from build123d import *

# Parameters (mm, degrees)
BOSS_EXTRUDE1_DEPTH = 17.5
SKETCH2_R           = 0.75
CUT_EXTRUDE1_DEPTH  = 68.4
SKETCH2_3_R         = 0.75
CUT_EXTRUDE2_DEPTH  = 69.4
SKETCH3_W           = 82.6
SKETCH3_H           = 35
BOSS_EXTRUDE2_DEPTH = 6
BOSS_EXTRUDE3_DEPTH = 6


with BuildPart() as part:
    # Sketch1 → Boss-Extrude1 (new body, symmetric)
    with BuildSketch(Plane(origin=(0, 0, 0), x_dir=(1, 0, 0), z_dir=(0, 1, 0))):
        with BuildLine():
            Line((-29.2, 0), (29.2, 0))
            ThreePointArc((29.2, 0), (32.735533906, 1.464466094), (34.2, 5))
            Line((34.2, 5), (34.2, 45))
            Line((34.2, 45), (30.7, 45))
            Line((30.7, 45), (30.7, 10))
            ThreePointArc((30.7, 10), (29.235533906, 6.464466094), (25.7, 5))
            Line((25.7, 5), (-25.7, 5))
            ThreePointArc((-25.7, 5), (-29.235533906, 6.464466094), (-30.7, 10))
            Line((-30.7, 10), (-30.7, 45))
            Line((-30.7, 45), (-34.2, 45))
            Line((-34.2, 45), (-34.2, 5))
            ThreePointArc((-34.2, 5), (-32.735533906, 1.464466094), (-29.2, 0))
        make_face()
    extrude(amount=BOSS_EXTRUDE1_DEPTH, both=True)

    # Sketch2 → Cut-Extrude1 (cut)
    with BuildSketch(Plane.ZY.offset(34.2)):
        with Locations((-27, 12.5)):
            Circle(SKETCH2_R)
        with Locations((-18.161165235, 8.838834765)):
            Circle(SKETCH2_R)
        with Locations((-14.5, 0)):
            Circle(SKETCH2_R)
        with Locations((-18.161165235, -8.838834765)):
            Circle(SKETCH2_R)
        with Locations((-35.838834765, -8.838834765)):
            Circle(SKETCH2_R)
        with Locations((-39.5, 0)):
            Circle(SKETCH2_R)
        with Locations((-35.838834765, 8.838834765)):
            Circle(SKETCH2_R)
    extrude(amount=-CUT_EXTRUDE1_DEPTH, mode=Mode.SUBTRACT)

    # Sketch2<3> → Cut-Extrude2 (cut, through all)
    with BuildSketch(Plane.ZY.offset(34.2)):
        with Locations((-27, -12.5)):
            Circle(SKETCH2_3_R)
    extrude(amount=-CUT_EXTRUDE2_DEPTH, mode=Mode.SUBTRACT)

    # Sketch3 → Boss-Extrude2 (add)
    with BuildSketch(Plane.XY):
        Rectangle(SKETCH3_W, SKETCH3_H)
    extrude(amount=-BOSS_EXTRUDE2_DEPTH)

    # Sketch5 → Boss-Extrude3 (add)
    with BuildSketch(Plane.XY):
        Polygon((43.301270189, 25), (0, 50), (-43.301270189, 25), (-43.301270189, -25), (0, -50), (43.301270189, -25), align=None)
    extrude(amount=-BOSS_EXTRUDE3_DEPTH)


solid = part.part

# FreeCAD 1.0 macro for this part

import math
import FreeCAD as App
import Part
import Sketcher
from FreeCAD import Vector
Q = App.Units.Quantity

doc = App.newDocument("Part")
params = doc.addObject("Spreadsheet::Sheet", "Params")
for row, (alias, value) in enumerate([
    ("sketch1_radius", "5 mm"),
    ("sketch1_height", "40 mm"),
    ("sketch1_width", "58.4 mm"),
    ("sketch1_width2", "3.5 mm"),
    ("pad1_length", "35 mm"),
    ("sketch2_diameter", "1.5 mm"),
    ("pocket1_length", "68.4 mm"),
    ("sketch3_diameter", "1.5 mm"),
    ("sketch4_height", "35 mm"),
    ("sketch4_width", "82.6 mm"),
    ("pad2_length", "6 mm"),
    ("sketch5_height", "50 mm"),
    ("sketch5_length", "50 mm"),
    ("pad3_length", "6 mm"),
], start=1):
    params.set(f"A{row}", alias)
    params.set(f"B{row}", "=" + value)
    params.setAlias(f"B{row}", alias)

body = doc.addObject("PartDesign::Body", "Body")

# Sketch on XZ plane
sketch1 = body.newObject("Sketcher::SketchObject", "Sketch")
sketch1.AttachmentSupport = (doc.getObject("XZ_Plane"), [""])
sketch1.MapMode = "FlatFace"
sketch1.addGeometry([
    Part.LineSegment(Vector(-29.2, 0, 0), Vector(29.2, 0, 0)),  # 0
    Part.ArcOfCircle(Part.Circle(Vector(29.2, -5, 0), Vector(0, 0, 1), 5), math.radians(0), math.radians(90)),  # 1
    Part.LineSegment(Vector(34.2, -5, 0), Vector(34.2, -45, 0)),  # 2
    Part.LineSegment(Vector(34.2, -45, 0), Vector(30.7, -45, 0)),  # 3
    Part.LineSegment(Vector(30.7, -45, 0), Vector(30.7, -10, 0)),  # 4
    Part.ArcOfCircle(Part.Circle(Vector(25.7, -10, 0), Vector(0, 0, 1), 5), math.radians(0), math.radians(90)),  # 5
    Part.LineSegment(Vector(25.7, -5, 0), Vector(-25.7, -5, 0)),  # 6
    Part.ArcOfCircle(Part.Circle(Vector(-25.7, -10, 0), Vector(0, 0, 1), 5), math.radians(90), math.radians(180)),  # 7
    Part.LineSegment(Vector(-30.7, -10, 0), Vector(-30.7, -45, 0)),  # 8
    Part.LineSegment(Vector(-30.7, -45, 0), Vector(-34.2, -45, 0)),  # 9
    Part.LineSegment(Vector(-34.2, -45, 0), Vector(-34.2, -5, 0)),  # 10
    Part.ArcOfCircle(Part.Circle(Vector(-29.2, -5, 0), Vector(0, 0, 1), 5), math.radians(90), math.radians(180)),  # 11
], False)
sketch1.addConstraint([
    Sketcher.Constraint("Tangent", 0, 2, 1, 2),
    Sketcher.Constraint("Tangent", 1, 1, 2, 1),
    Sketcher.Constraint("Coincident", 2, 2, 3, 1),
    Sketcher.Constraint("Coincident", 3, 2, 4, 1),
    Sketcher.Constraint("Tangent", 4, 2, 5, 1),
    Sketcher.Constraint("Tangent", 5, 2, 6, 1),
    Sketcher.Constraint("Tangent", 6, 2, 7, 1),
    Sketcher.Constraint("Tangent", 7, 2, 8, 1),
    Sketcher.Constraint("Coincident", 8, 2, 9, 1),
    Sketcher.Constraint("Coincident", 9, 2, 10, 1),
    Sketcher.Constraint("Tangent", 10, 2, 11, 2),
    Sketcher.Constraint("Tangent", 11, 1, 0, 1),
    Sketcher.Constraint("Horizontal", 0),
    Sketcher.Constraint("Vertical", 2),
    Sketcher.Constraint("Horizontal", 3),
    Sketcher.Constraint("Vertical", 4),
    Sketcher.Constraint("Horizontal", 6),
    Sketcher.Constraint("Vertical", 8),
    Sketcher.Constraint("Horizontal", 9),
    Sketcher.Constraint("Vertical", 10),
    Sketcher.Constraint("Equal", 1, 5),
    Sketcher.Constraint("Equal", 5, 7),
    Sketcher.Constraint("Equal", 7, 11),
    Sketcher.Constraint("Symmetric", 0, 2, 11, 1, -1, 1),
    Sketcher.Constraint("Symmetric", 3, 2, 8, 2, -2),
    Sketcher.Constraint("Horizontal", 1, 1, 5, 2),
    Sketcher.Constraint("Radius", 1, 5.0),
    Sketcher.Constraint("DistanceY", 2, 2, 2, 1, 40.0),
    Sketcher.Constraint("DistanceX", 0, 1, 0, 2, 58.4),
    Sketcher.Constraint("DistanceX", 3, 2, 3, 1, 3.5),
])
sketch1.setExpression("Constraints[26]", "Params.sketch1_radius")
sketch1.setExpression("Constraints[27]", "Params.sketch1_height")
sketch1.setExpression("Constraints[28]", "Params.sketch1_width")
sketch1.setExpression("Constraints[29]", "Params.sketch1_width2")
pad1 = body.newObject("PartDesign::Pad", "Pad")
pad1.Profile = sketch1
pad1.setExpression("Length", "Params.pad1_length")
pad1.Midplane = True

# Sketch on YZ plane
sketch2 = body.newObject("Sketcher::SketchObject", "Sketch001")
sketch2.AttachmentSupport = (doc.getObject("YZ_Plane"), [""])
sketch2.MapMode = "FlatFace"
sketch2.AttachmentOffset = App.Placement(Vector(0, 0, -34.2), App.Rotation())
sketch2.addGeometry([
    Part.Circle(Vector(12.5, -27, 0), Vector(0, 0, 1), 0.8),  # 0
    Part.Circle(Vector(8.8, -18.2, 0), Vector(0, 0, 1), 0.8),  # 1
    Part.Circle(Vector(0, -14.5, 0), Vector(0, 0, 1), 0.8),  # 2
    Part.Circle(Vector(-8.8, -18.2, 0), Vector(0, 0, 1), 0.8),  # 3
    Part.Circle(Vector(-8.8, -35.8, 0), Vector(0, 0, 1), 0.8),  # 4
    Part.Circle(Vector(0, -39.5, 0), Vector(0, 0, 1), 0.8),  # 5
    Part.Circle(Vector(8.8, -35.8, 0), Vector(0, 0, 1), 0.8),  # 6
], False)
sketch2.addConstraint([
    Sketcher.Constraint("Equal", 0, 1),
    Sketcher.Constraint("Equal", 1, 2),
    Sketcher.Constraint("Equal", 2, 3),
    Sketcher.Constraint("Equal", 3, 4),
    Sketcher.Constraint("Equal", 4, 5),
    Sketcher.Constraint("Equal", 5, 6),
    Sketcher.Constraint("Symmetric", 1, 3, 3, 3, -2),
    Sketcher.Constraint("Symmetric", 4, 3, 6, 3, -2),
    Sketcher.Constraint("PointOnObject", 2, 3, -2),
    Sketcher.Constraint("PointOnObject", 5, 3, -2),
    Sketcher.Constraint("Vertical", 3, 3, 4, 3),
    Sketcher.Constraint("Diameter", 0, 1.5),
    Sketcher.Constraint("DistanceY", 0, 3, -1, 1, 27.0),
    Sketcher.Constraint("DistanceY", 5, 3, 2, 3, 25.0),
    Sketcher.Constraint("DistanceX", -1, 1, 0, 3, 12.5),
    Sketcher.Constraint("DistanceY", 2, 3, -1, 1, 14.5),
    Sketcher.Constraint("DistanceX", 3, 3, 1, 3, 17.67767),
    Sketcher.Constraint("DistanceY", 4, 3, 3, 3, 17.67767),
    Sketcher.Constraint("DistanceY", 1, 3, -1, 1, 18.161165),
])
sketch2.setExpression("Constraints[11]", "Params.sketch2_diameter")
pocket1 = body.newObject("PartDesign::Pocket", "Pocket")
pocket1.Profile = sketch2
pocket1.setExpression("Length", "Params.pocket1_length")
pocket1.Reversed = True

# Sketch on YZ plane
sketch3 = body.newObject("Sketcher::SketchObject", "Sketch002")
sketch3.AttachmentSupport = (doc.getObject("YZ_Plane"), [""])
sketch3.MapMode = "FlatFace"
sketch3.AttachmentOffset = App.Placement(Vector(0, 0, -34.2), App.Rotation())
sketch3.addGeometry(Part.Circle(Vector(-12.5, -27, 0), Vector(0, 0, 1), 0.8), False)
sketch3.addConstraint([
    Sketcher.Constraint("Diameter", 0, 1.5),
    Sketcher.Constraint("DistanceY", 0, 3, -1, 1, 27.0),
    Sketcher.Constraint("DistanceX", 0, 3, -1, 1, 12.5),
])
sketch3.setExpression("Constraints[0]", "Params.sketch3_diameter")
pocket2 = body.newObject("PartDesign::Pocket", "Pocket001")
pocket2.Profile = sketch3
pocket2.Type = "ThroughAll"
pocket2.Reversed = True

# Sketch on XY plane
sketch4 = body.newObject("Sketcher::SketchObject", "Sketch003")
sketch4.AttachmentSupport = (doc.getObject("XY_Plane"), [""])
sketch4.MapMode = "FlatFace"
sketch4.addGeometry([
    Part.LineSegment(Vector(-41, 18, 0), Vector(-41, -18, 0)),
    Part.LineSegment(Vector(-41, -18, 0), Vector(41, -18, 0)),
    Part.LineSegment(Vector(41, -18, 0), Vector(41, 18, 0)),
    Part.LineSegment(Vector(41, 18, 0), Vector(-41, 18, 0)),
], False)
sketch4.addConstraint([
    Sketcher.Constraint("Coincident", 0, 2, 1, 1),
    Sketcher.Constraint("Coincident", 1, 2, 2, 1),
    Sketcher.Constraint("Coincident", 2, 2, 3, 1),
    Sketcher.Constraint("Coincident", 3, 2, 0, 1),
    Sketcher.Constraint("Vertical", 0),
    Sketcher.Constraint("Horizontal", 1),
    Sketcher.Constraint("Vertical", 2),
    Sketcher.Constraint("Horizontal", 3),
    Sketcher.Constraint("Symmetric", 0, 2, 2, 2, -1, 1),
    Sketcher.Constraint("DistanceY", 0, 2, 0, 1, 35.0),
    Sketcher.Constraint("DistanceX", 1, 1, 1, 2, 82.6),
])
sketch4.setExpression("Constraints[9]", "Params.sketch4_height")
sketch4.setExpression("Constraints[10]", "Params.sketch4_width")
pad2 = body.newObject("PartDesign::Pad", "Pad001")
pad2.Profile = sketch4
pad2.setExpression("Length", "Params.pad2_length")
pad2.Reversed = True

# Sketch on XY plane
sketch5 = body.newObject("Sketcher::SketchObject", "Sketch004")
sketch5.AttachmentSupport = (doc.getObject("XY_Plane"), [""])
sketch5.MapMode = "FlatFace"
sketch5.addGeometry([
    Part.LineSegment(Vector(43, 25, 0), Vector(0, 50, 0)),  # 0
    Part.LineSegment(Vector(0, 50, 0), Vector(-43, 25, 0)),  # 1
    Part.LineSegment(Vector(-43, 25, 0), Vector(-43, -25, 0)),  # 2
    Part.LineSegment(Vector(-43, -25, 0), Vector(0, -50, 0)),  # 3
    Part.LineSegment(Vector(0, -50, 0), Vector(43, -25, 0)),  # 4
    Part.LineSegment(Vector(43, -25, 0), Vector(43, 25, 0)),  # 5
], False)
sketch5.addConstraint([
    Sketcher.Constraint("Coincident", 0, 2, 1, 1),
    Sketcher.Constraint("Coincident", 1, 2, 2, 1),
    Sketcher.Constraint("Coincident", 2, 2, 3, 1),
    Sketcher.Constraint("Coincident", 3, 2, 4, 1),
    Sketcher.Constraint("Coincident", 4, 2, 5, 1),
    Sketcher.Constraint("Coincident", 5, 2, 0, 1),
    Sketcher.Constraint("Vertical", 2),
    Sketcher.Constraint("Vertical", 5),
    Sketcher.Constraint("Symmetric", 0, 2, 3, 2, -1, 1),
    Sketcher.Constraint("Symmetric", 1, 2, 4, 2, -1, 1),
    Sketcher.Constraint("PointOnObject", 0, 2, -2),
    Sketcher.Constraint("Parallel", 0, 3),
    Sketcher.Constraint("Horizontal", 2, 2, 4, 2),
    Sketcher.Constraint("DistanceY", 2, 2, 2, 1, 50.0),
    Sketcher.Constraint("Angle", 0, Q("150 deg")),
    Sketcher.Constraint("Distance", 0, 50.0),
])
sketch5.setExpression("Constraints[13]", "Params.sketch5_height")
sketch5.setExpression("Constraints[15]", "Params.sketch5_length")
pad3 = body.newObject("PartDesign::Pad", "Pad002")
pad3.Profile = sketch5
pad3.setExpression("Length", "Params.pad3_length")
pad3.Reversed = True

doc.recompute()
